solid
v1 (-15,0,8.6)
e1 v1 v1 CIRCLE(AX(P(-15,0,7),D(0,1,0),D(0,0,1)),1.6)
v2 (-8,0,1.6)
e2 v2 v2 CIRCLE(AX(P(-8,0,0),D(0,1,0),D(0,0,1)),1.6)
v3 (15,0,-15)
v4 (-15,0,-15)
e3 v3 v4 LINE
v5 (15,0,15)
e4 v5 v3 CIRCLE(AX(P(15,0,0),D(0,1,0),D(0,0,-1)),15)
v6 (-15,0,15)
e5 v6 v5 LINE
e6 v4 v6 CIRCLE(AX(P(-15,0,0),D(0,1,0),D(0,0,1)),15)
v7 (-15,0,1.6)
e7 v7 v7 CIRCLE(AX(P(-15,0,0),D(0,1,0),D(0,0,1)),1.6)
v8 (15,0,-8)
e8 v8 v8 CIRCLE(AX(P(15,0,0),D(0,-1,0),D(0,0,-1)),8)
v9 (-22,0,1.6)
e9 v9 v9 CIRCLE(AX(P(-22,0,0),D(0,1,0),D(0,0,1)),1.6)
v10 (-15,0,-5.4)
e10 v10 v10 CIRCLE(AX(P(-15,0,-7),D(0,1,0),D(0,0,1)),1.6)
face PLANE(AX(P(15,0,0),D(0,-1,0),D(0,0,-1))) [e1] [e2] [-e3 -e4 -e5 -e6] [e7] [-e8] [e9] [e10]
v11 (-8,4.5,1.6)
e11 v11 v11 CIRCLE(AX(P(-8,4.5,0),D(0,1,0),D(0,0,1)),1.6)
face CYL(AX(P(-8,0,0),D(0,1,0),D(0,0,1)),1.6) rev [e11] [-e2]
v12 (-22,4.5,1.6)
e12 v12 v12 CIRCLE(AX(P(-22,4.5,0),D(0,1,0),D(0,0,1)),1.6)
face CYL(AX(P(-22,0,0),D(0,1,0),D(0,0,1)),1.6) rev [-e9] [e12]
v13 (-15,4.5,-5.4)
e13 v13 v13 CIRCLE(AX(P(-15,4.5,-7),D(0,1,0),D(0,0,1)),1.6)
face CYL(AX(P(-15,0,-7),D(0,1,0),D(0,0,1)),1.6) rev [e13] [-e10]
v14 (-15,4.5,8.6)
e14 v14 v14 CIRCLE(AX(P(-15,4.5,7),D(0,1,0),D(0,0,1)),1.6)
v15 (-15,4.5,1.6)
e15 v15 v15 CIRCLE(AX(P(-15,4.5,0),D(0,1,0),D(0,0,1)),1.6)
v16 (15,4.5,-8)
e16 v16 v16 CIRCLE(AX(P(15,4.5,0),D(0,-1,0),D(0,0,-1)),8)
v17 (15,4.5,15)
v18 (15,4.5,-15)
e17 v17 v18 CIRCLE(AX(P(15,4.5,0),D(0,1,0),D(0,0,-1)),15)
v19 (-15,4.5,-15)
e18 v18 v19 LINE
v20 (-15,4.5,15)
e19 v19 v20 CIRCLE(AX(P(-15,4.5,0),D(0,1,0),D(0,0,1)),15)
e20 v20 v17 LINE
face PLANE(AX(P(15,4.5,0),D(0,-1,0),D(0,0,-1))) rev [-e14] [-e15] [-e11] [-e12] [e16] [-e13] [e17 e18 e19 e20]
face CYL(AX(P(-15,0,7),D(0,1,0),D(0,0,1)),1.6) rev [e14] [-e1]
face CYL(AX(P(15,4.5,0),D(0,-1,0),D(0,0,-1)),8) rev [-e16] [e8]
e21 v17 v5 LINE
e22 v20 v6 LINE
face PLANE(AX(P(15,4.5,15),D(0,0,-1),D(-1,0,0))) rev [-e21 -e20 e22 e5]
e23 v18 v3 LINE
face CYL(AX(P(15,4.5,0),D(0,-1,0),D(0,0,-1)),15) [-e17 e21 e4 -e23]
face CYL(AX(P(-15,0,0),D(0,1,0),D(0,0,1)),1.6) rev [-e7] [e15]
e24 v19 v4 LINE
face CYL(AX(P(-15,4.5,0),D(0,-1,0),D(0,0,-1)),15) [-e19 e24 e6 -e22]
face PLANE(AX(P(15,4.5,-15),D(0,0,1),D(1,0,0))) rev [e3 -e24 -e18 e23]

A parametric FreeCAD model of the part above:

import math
import FreeCAD as App
import Part
import Sketcher
from FreeCAD import Vector

doc = App.newDocument("Part")
params = doc.addObject("Spreadsheet::Sheet", "Params")
for row, (alias, value) in enumerate([
    ("sketch1_radius", "15 mm"),
    ("sketch1_width", "30 mm"),
    ("pad1_length", "4.5 mm"),
    ("sketch2_diameter", "3.2 mm"),
    ("sketch3_diameter", "16 mm"),
], start=1):
    params.set(f"A{row}", alias)
    params.set(f"B{row}", "=" + value)
    params.setAlias(f"B{row}", alias)

body = doc.addObject("PartDesign::Body", "Body")

sketch1 = body.newObject("Sketcher::SketchObject", "Sketch")
sketch1.AttachmentSupport = (doc.getObject("XZ_Plane"), [""])
sketch1.MapMode = "FlatFace"
sketch1.addGeometry(Part.LineSegment(Vector(15, -15, 0), Vector(-15, -15, 0)), False)
sketch1.addGeometry(Part.ArcOfCircle(Part.Circle(Vector(-15, 0, 0), Vector(0, 0, 1), 15), math.radians(90), math.radians(270)), False)
sketch1.addGeometry(Part.LineSegment(Vector(-15, 15, 0), Vector(15, 15, 0)), False)
sketch1.addGeometry(Part.ArcOfCircle(Part.Circle(Vector(15, 0, 0), Vector(0, 0, 1), 15), math.radians(-90), math.radians(90)), False)
sketch1.addConstraint(Sketcher.Constraint("Tangent", 0, 2, 1, 2))
sketch1.addConstraint(Sketcher.Constraint("Tangent", 1, 1, 2, 1))
sketch1.addConstraint(Sketcher.Constraint("Tangent", 2, 2, 3, 2))
sketch1.addConstraint(Sketcher.Constraint("Tangent", 3, 1, 0, 1))
sketch1.addConstraint(Sketcher.Constraint("Horizontal", 0))
sketch1.addConstraint(Sketcher.Constraint("Horizontal", 2))
sketch1.addConstraint(Sketcher.Constraint("Symmetric", 1, 3, 3, 3, -1, 1))
sketch1.addConstraint(Sketcher.Constraint("Radius", 1, 15.0))
sketch1.addConstraint(Sketcher.Constraint("DistanceX", 0, 2, 0, 1, 30.0))
sketch1.setExpression("Constraints[7]", "Params.sketch1_radius")
sketch1.setExpression("Constraints[8]", "Params.sketch1_width")
pad1 = body.newObject("PartDesign::Pad", "Pad")
pad1.Profile = sketch1
pad1.setExpression("Length", "Params.pad1_length")
pad1.Reversed = True

sketch2 = body.newObject("Sketcher::SketchObject", "Sketch001")
sketch2.AttachmentSupport = (doc.getObject("XZ_Plane"), [""])
sketch2.MapMode = "FlatFace"
sketch2.AttachmentOffset = App.Placement(Vector(0, 0, -4.5), App.Rotation())
sketch2.addGeometry(Part.Circle(Vector(-15, 0, 0), Vector(0, 0, 1), 1.6), False)
sketch2.addGeometry(Part.Circle(Vector(-8, 0, 0), Vector(0, 0, 1), 1.6), False)
sketch2.addGeometry(Part.Circle(Vector(-15, 7, 0), Vector(0, 0, 1), 1.6), False)
sketch2.addGeometry(Part.Circle(Vector(-22, 0, 0), Vector(0, 0, 1), 1.6), False)
sketch2.addGeometry(Part.Circle(Vector(-15, -7, 0), Vector(0, 0, 1), 1.6), False)
sketch2.addConstraint(Sketcher.Constraint("Equal", 0, 1))
sketch2.addConstraint(Sketcher.Constraint("Equal", 1, 2))
sketch2.addConstraint(Sketcher.Constraint("Equal", 2, 3))
sketch2.addConstraint(Sketcher.Constraint("Equal", 3, 4))
sketch2.addConstraint(Sketcher.Constraint("Symmetric", 2, 3, 4, 3, -1))
sketch2.addConstraint(Sketcher.Constraint("PointOnObject", 0, 3, -1))
sketch2.addConstraint(Sketcher.Constraint("PointOnObject", 1, 3, -1))
sketch2.addConstraint(Sketcher.Constraint("PointOnObject", 3, 3, -1))
sketch2.addConstraint(Sketcher.Constraint("Vertical", 0, 3, 2, 3))
sketch2.addConstraint(Sketcher.Constraint("Diameter", 0, 3.2))
sketch2.addConstraint(Sketcher.Constraint("DistanceX", 0, 3, -1, 1, 15.0))
sketch2.addConstraint(Sketcher.Constraint("DistanceX", 1, 3, -1, 1, 8.0))
sketch2.addConstraint(Sketcher.Constraint("DistanceY", -1, 1, 2, 3, 7.0))
sketch2.addConstraint(Sketcher.Constraint("DistanceX", 3, 3, -1, 1, 22.0))
sketch2.setExpression("Constraints[9]", "Params.sketch2_diameter")
pocket1 = body.newObject("PartDesign::Pocket", "Pocket")
pocket1.Profile = sketch2
pocket1.Type = "ThroughAll"
pocket1.Reversed = True

sketch3 = body.newObject("Sketcher::SketchObject", "Sketch002")
sketch3.AttachmentSupport = (doc.getObject("XZ_Plane"), [""])
sketch3.MapMode = "FlatFace"
sketch3.addGeometry(Part.Circle(Vector(15, 0, 0), Vector(0, 0, 1), 8), False)
sketch3.addConstraint(Sketcher.Constraint("PointOnObject", 0, 3, -1))
sketch3.addConstraint(Sketcher.Constraint("Diameter", 0, 16.0))
sketch3.addConstraint(Sketcher.Constraint("DistanceX", -1, 1, 0, 3, 15.0))
sketch3.setExpression("Constraints[1]", "Params.sketch3_diameter")
pocket2 = body.newObject("PartDesign::Pocket", "Pocket001")
pocket2.Profile = sketch3
pocket2.Type = "ThroughAll"

doc.recompute()
